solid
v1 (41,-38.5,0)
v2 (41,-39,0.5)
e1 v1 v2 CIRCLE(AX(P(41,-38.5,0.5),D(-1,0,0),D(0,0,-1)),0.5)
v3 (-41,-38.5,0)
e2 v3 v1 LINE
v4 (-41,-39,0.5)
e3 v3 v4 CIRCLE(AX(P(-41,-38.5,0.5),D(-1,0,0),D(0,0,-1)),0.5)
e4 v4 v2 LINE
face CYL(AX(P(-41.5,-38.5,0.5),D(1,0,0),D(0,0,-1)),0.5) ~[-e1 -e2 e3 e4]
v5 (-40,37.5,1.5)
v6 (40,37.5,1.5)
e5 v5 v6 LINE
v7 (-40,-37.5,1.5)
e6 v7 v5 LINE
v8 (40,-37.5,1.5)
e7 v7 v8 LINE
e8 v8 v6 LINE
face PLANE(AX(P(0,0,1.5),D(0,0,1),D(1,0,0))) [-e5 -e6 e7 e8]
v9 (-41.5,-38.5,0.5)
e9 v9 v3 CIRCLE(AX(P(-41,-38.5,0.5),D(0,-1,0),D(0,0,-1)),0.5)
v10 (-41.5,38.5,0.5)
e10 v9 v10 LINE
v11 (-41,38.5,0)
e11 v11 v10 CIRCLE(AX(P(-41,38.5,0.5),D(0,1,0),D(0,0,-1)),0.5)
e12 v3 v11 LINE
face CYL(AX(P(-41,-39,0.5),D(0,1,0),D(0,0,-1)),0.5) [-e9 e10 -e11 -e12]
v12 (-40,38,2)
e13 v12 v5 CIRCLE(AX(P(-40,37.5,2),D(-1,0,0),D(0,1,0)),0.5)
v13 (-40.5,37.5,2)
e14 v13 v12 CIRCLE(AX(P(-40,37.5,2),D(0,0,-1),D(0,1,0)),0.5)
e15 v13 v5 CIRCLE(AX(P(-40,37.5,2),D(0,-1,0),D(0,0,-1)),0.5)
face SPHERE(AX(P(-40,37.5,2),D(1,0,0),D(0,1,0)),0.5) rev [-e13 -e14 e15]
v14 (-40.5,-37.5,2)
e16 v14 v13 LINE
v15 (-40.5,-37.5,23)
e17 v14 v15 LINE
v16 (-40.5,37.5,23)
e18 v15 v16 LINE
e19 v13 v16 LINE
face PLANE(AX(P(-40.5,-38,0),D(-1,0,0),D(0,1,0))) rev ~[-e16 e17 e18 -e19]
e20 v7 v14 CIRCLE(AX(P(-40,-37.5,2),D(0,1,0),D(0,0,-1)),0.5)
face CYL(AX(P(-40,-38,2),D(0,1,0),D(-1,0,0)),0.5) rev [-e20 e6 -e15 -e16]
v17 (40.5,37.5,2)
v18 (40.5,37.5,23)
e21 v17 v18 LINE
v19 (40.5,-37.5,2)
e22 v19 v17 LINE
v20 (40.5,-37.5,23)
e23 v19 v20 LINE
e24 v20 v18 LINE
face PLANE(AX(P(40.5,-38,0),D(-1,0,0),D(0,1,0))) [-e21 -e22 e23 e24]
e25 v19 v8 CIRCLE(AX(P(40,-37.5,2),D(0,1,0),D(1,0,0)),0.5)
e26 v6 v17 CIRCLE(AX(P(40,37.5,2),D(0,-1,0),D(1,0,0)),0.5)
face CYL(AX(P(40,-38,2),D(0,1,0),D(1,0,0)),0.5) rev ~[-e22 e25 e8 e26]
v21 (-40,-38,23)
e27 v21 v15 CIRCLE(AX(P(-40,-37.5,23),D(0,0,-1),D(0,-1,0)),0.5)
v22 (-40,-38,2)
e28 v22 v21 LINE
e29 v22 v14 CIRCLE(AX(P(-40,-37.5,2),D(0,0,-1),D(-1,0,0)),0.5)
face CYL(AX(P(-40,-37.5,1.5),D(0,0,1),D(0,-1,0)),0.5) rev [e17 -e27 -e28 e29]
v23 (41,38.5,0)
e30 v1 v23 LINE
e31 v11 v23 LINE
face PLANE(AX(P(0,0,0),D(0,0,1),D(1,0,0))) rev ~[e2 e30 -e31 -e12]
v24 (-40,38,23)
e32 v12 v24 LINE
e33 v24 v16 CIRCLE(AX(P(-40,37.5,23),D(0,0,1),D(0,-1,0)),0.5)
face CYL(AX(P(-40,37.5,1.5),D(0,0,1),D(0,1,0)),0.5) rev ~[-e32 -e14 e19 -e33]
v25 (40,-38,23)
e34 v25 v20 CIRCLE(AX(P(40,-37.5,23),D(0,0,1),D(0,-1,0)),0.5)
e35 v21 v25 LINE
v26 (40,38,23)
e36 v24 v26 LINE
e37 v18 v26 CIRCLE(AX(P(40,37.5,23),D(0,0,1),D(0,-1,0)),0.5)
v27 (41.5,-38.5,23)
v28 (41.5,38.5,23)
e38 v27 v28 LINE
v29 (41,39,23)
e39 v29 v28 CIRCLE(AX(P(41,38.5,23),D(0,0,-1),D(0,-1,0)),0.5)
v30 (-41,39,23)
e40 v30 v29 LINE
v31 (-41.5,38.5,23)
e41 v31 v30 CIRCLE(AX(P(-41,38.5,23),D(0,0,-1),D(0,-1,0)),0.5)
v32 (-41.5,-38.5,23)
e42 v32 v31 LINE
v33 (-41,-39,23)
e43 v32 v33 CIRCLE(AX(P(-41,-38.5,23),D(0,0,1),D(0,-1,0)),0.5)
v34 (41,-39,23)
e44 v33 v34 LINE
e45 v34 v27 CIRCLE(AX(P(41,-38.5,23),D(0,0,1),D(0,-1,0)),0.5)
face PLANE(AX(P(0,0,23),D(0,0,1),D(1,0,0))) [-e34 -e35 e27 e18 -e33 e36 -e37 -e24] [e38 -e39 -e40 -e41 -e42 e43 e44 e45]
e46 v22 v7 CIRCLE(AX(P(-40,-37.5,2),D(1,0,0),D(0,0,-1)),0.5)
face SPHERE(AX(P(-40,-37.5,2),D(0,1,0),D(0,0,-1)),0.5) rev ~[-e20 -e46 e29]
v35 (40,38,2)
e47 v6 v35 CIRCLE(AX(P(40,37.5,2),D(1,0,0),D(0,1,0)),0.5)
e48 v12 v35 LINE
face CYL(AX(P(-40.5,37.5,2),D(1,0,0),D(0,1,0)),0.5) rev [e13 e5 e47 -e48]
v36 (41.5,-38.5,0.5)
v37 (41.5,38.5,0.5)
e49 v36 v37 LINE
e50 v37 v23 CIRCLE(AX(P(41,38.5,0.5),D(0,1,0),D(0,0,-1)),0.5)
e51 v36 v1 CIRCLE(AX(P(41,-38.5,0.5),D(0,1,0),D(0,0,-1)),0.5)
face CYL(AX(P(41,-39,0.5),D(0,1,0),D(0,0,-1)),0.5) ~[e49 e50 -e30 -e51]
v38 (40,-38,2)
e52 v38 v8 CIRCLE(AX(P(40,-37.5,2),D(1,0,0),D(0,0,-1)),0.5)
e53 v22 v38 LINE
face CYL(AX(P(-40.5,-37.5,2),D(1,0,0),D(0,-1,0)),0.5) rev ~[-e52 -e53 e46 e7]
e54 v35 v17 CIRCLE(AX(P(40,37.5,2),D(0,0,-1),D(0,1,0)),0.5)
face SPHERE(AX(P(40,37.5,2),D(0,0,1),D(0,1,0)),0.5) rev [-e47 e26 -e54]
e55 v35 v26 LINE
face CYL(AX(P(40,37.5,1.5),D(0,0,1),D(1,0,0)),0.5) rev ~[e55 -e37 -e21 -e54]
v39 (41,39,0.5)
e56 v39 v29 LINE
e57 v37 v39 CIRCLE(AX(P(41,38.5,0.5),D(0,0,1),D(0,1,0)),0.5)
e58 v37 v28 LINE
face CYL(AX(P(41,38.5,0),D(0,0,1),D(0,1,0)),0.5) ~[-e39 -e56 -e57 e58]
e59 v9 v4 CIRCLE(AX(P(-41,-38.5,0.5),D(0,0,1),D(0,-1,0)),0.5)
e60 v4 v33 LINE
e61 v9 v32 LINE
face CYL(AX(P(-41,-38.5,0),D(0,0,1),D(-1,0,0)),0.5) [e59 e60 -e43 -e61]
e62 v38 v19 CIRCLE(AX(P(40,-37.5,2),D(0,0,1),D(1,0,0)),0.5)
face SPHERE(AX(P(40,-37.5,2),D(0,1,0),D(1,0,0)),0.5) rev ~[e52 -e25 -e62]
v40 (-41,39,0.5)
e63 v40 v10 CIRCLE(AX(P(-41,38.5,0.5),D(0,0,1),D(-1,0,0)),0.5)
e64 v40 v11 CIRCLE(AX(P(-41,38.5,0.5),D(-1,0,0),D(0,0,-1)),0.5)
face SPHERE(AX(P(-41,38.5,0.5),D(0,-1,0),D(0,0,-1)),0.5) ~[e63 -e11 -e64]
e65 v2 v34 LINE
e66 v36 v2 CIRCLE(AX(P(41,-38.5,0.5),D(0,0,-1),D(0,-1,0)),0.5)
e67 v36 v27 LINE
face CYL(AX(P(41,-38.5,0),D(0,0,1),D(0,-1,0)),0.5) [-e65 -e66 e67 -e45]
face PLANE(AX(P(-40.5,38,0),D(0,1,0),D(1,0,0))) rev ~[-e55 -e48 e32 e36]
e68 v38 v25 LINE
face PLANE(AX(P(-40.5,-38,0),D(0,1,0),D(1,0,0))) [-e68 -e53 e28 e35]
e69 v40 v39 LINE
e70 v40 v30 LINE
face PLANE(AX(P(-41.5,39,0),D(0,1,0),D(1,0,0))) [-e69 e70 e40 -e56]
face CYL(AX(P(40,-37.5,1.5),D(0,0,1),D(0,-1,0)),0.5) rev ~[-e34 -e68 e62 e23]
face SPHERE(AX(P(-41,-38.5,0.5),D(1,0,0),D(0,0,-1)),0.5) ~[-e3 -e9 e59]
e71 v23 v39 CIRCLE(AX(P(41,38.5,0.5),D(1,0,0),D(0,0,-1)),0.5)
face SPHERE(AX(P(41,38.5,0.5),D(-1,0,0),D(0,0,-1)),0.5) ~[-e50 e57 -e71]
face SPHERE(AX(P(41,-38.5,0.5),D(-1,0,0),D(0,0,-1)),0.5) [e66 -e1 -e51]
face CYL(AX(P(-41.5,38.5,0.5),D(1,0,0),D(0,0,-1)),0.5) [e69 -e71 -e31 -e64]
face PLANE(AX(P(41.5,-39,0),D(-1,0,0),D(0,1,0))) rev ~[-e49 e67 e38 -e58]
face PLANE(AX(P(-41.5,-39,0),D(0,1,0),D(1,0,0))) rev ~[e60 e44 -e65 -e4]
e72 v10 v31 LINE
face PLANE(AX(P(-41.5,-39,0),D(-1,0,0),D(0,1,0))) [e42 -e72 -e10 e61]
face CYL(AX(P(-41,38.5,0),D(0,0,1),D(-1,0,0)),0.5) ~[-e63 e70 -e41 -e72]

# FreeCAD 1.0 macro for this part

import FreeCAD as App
import Part
import Sketcher
from FreeCAD import Vector
Q = App.Units.Quantity


def edges_at(feature, points):
    """Names of the edges that pass closest to the given points."""
    edges = feature.Shape.Edges
    near = lambda p: min(range(len(edges)), key=lambda i: edges[i].distToShape(Part.Vertex(*p))[0])
    return sorted({f"Edge{near(p) + 1}" for p in points})


def add_polygon(sketch, points):
    """Adds a closed chain of lines whose ends are joined by coincident constraints."""
    first, n = sketch.GeometryCount, len(points)
    for a, b in zip(points, points[1:] + points[:1]):
        sketch.addGeometry(Part.LineSegment(App.Vector(*a, 0), App.Vector(*b, 0)), False)
    for i in range(n):
        sketch.addConstraint(Sketcher.Constraint("Coincident", first + i, 2, first + (i + 1) % n, 1))

doc = App.newDocument("Part")
params = doc.addObject("Spreadsheet::Sheet", "Params")
for row, (alias, value) in enumerate([
    ("sketch1_width", "83 mm"),
    ("sketch1_width2", "81 mm"),
    ("sketch1_height", "78 mm"),
    ("sketch1_height2", "76 mm"),
    ("pad1_length", "23 mm"),
    ("sketch2_width", "81 mm"),
    ("sketch2_height", "76 mm"),
    ("pad2_length", "1.5 mm"),
    ("fillet_radius", "0.5 mm"),
    ("fillet2_radius", "0.5 mm"),
], start=1):
    params.set(f"A{row}", alias)
    params.set(f"B{row}", "=" + value)
    params.setAlias(f"B{row}", alias)

body = doc.addObject("PartDesign::Body", "Body")

sketch1 = body.newObject("Sketcher::SketchObject", "Sketch")
sketch1.AttachmentSupport = (doc.getObject("XY_Plane"), [""])
sketch1.MapMode = "FlatFace"
add_polygon(sketch1, [(-42, 39), (-42, -39), (42, -39), (42, 39)])
add_polygon(sketch1, [(40, -38), (-40, -38), (-40, 38), (40, 38)])
sketch1.addConstraint([
    Sketcher.Constraint("Vertical", 0),
    Sketcher.Constraint("Horizontal", 1),
    Sketcher.Constraint("Vertical", 2),
    Sketcher.Constraint("Horizontal", 3),
    Sketcher.Constraint("Horizontal", 4),
    Sketcher.Constraint("Vertical", 5),
    Sketcher.Constraint("Horizontal", 6),
    Sketcher.Constraint("Vertical", 7),
    Sketcher.Constraint("Symmetric", 0, 2, 2, 2, -1, 1),
    Sketcher.Constraint("Symmetric", 4, 2, 6, 2, -1, 1),
    Sketcher.Constraint("DistanceX", 1, 1, 1, 2, Q("83 mm")),
    Sketcher.Constraint("DistanceX", 4, 2, 4, 1, Q("81 mm")),
    Sketcher.Constraint("DistanceY", 0, 2, 0, 1, Q("78 mm")),
    Sketcher.Constraint("DistanceY", 5, 1, 5, 2, Q("76 mm")),
])
sketch1.setExpression("Constraints[18]", "Params.sketch1_width")
sketch1.setExpression("Constraints[19]", "Params.sketch1_width2")
sketch1.setExpression("Constraints[20]", "Params.sketch1_height")
sketch1.setExpression("Constraints[21]", "Params.sketch1_height2")
pad1 = body.newObject("PartDesign::Pad", "Pad")
pad1.Profile = sketch1
pad1.setExpression("Length", "Params.pad1_length")

sketch2 = body.newObject("Sketcher::SketchObject", "Sketch001")
sketch2.AttachmentSupport = (doc.getObject("XY_Plane"), [""])
sketch2.MapMode = "FlatFace"
add_polygon(sketch2, [(-40, 38), (-40, -38), (40, -38), (40, 38)])
sketch2.addConstraint([
    Sketcher.Constraint("Vertical", 0),
    Sketcher.Constraint("Horizontal", 1),
    Sketcher.Constraint("Vertical", 2),
    Sketcher.Constraint("Horizontal", 3),
    Sketcher.Constraint("Symmetric", 0, 2, 2, 2, -1, 1),
    Sketcher.Constraint("DistanceX", 1, 1, 1, 2, Q("81 mm")),
    Sketcher.Constraint("DistanceY", 0, 2, 0, 1, Q("76 mm")),
])
sketch2.setExpression("Constraints[9]", "Params.sketch2_width")
sketch2.setExpression("Constraints[10]", "Params.sketch2_height")
pad2 = body.newObject("PartDesign::Pad", "Pad001")
pad2.Profile = sketch2
pad2.setExpression("Length", "Params.pad2_length")
doc.recompute()

fillet = body.newObject("PartDesign::Fillet", "Fillet")
fillet.Base = (pad2, edges_at(pad2, [
    (0, -39, 0),
    (-41.5, 0, 0),
    (0, 39, 0),
    (41.5, 0, 0),
    (-41.5, -39, 11.5),
    (41.5, -39, 11.5),
    (-41.5, 39, 11.5),
    (41.5, 39, 11.5),
]))
fillet.setExpression("Radius", "Params.fillet_radius")
doc.recompute()

fillet2 = body.newObject("PartDesign::Fillet", "Fillet001")
fillet2.Base = (fillet, edges_at(fillet, [
    (40.5, 38, 12.25),
    (0, 38, 1.5),
    (40.5, 0, 1.5),
    (-40.5, 38, 12.25),
    (-40.5, 0, 1.5),
    (40.5, -38, 12.25),
    (0, -38, 1.5),
    (-40.5, -38, 12.25),
]))
fillet2.setExpression("Radius", "Params.fillet2_radius")

doc.recompute()
